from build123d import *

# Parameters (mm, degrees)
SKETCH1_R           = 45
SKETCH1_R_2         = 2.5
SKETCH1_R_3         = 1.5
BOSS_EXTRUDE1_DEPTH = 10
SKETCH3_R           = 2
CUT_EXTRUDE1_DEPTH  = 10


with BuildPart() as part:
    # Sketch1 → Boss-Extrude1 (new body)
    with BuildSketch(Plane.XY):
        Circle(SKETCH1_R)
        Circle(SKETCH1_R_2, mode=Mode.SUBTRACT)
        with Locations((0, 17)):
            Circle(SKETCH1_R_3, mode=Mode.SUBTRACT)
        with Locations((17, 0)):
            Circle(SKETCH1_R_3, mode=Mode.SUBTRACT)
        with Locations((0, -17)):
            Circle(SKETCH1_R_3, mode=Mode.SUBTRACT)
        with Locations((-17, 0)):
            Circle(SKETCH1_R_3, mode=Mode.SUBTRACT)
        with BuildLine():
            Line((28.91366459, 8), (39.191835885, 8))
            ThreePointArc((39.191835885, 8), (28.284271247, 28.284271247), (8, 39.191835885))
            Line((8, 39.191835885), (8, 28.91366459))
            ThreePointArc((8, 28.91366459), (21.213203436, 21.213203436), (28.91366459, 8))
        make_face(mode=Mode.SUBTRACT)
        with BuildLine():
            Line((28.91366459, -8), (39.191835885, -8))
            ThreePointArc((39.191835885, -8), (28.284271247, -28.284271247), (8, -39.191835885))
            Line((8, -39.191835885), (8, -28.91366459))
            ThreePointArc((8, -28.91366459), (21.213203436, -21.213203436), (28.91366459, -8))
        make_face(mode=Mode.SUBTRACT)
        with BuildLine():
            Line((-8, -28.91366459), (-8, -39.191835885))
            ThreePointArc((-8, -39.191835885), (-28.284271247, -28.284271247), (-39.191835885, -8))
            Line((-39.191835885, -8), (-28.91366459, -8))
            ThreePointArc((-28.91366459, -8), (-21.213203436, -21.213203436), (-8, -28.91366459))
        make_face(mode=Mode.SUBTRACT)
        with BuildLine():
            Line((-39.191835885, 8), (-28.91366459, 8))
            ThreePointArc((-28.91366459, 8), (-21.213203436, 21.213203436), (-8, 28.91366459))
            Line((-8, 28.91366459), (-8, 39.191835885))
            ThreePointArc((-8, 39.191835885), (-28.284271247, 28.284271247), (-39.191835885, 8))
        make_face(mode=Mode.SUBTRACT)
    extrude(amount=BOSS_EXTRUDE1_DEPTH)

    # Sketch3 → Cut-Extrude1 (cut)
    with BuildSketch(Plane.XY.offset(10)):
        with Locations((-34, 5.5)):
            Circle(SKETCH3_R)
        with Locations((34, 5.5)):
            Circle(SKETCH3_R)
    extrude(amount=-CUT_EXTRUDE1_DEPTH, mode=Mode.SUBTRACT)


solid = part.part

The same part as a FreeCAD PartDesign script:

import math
import FreeCAD as App
import Part
import Sketcher

doc = App.newDocument("Part")
params = doc.addObject("Spreadsheet::Sheet", "Params")
for row, (alias, value) in enumerate([
    ("sketch1_diameter", "90 mm"),
    ("sketch1_diameter2", "3 mm"),
    ("sketch1_diameter3", "5 mm"),
    ("sketch1_radius", "30 mm"),
    ("sketch1_radius2", "40 mm"),
    ("pad1_length", "10 mm"),
    ("sketch2_diameter", "4 mm"),
    ("pocket1_length", "10 mm"),
], start=1):
    params.set(f"A{row}", alias)
    params.set(f"B{row}", "=" + value)
    params.setAlias(f"B{row}", alias)

body = doc.addObject("PartDesign::Body", "Body")

sketch1 = body.newObject("Sketcher::SketchObject", "Sketch")
sketch1.AttachmentSupport = (doc.getObject("XY_Plane"), [""])
sketch1.MapMode = "FlatFace"
sketch1.addGeometry(Part.Circle(App.Vector(0, 0, 0), App.Vector(0, 0, 1), 45), False)
sketch1.addGeometry(Part.ArcOfCircle(Part.Circle(App.Vector(0, 0, 0), App.Vector(0, 0, 1), 30), math.radians(-165), math.radians(-105)), False)
sketch1.addGeometry(Part.LineSegment(App.Vector(-8, -28.9, 0), App.Vector(-8, -39.2, 0)), False)
sketch1.addGeometry(Part.ArcOfCircle(Part.Circle(App.Vector(0, 0, 0), App.Vector(0, 0, 1), 40), math.radians(-168), math.radians(-102)), False)
sketch1.addGeometry(Part.LineSegment(App.Vector(-39.2, -8, 0), App.Vector(-28.9, -8, 0)), False)
sketch1.addGeometry(Part.ArcOfCircle(Part.Circle(App.Vector(0, 0, 0), App.Vector(0, 0, 1), 30), math.radians(-75), math.radians(-15)), False)
sketch1.addGeometry(Part.LineSegment(App.Vector(28.9, -8, 0), App.Vector(39.2, -8, 0)), False)
sketch1.addGeometry(Part.ArcOfCircle(Part.Circle(App.Vector(0, 0, 0), App.Vector(0, 0, 1), 40), math.radians(-78), math.radians(-12)), False)
sketch1.addGeometry(Part.LineSegment(App.Vector(8, -39.2, 0), App.Vector(8, -28.9, 0)), False)
sketch1.addGeometry(Part.Circle(App.Vector(0, -17, 0), App.Vector(0, 0, 1), 1.5), False)
sketch1.addGeometry(Part.Circle(App.Vector(-17, 0, 0), App.Vector(0, 0, 1), 1.5), False)
sketch1.addGeometry(Part.LineSegment(App.Vector(-28.9, 8, 0), App.Vector(-39.2, 8, 0)), False)
sketch1.addGeometry(Part.ArcOfCircle(Part.Circle(App.Vector(0, 0, 0), App.Vector(0, 0, 1), 40), math.radians(102), math.radians(168)), False)
sketch1.addGeometry(Part.LineSegment(App.Vector(-8, 39.2, 0), App.Vector(-8, 28.9, 0)), False)
sketch1.addGeometry(Part.ArcOfCircle(Part.Circle(App.Vector(0, 0, 0), App.Vector(0, 0, 1), 30), math.radians(105), math.radians(165)), False)
sketch1.addGeometry(Part.Circle(App.Vector(0, 0, 0), App.Vector(0, 0, 1), 2.5), False)
sketch1.addGeometry(Part.Circle(App.Vector(17, 0, 0), App.Vector(0, 0, 1), 1.5), False)
sketch1.addGeometry(Part.Circle(App.Vector(0, 17, 0), App.Vector(0, 0, 1), 1.5), False)
sketch1.addGeometry(Part.LineSegment(App.Vector(39.2, 8, 0), App.Vector(28.9, 8, 0)), False)
sketch1.addGeometry(Part.ArcOfCircle(Part.Circle(App.Vector(0, 0, 0), App.Vector(0, 0, 1), 30), math.radians(15), math.radians(75)), False)
sketch1.addGeometry(Part.LineSegment(App.Vector(8, 28.9, 0), App.Vector(8, 39.2, 0)), False)
sketch1.addGeometry(Part.ArcOfCircle(Part.Circle(App.Vector(0, 0, 0), App.Vector(0, 0, 1), 40), math.radians(12), math.radians(78)), False)
sketch1.addConstraint(Sketcher.Constraint("Coincident", 1, 2, 2, 1))
sketch1.addConstraint(Sketcher.Constraint("Coincident", 2, 2, 3, 2))
sketch1.addConstraint(Sketcher.Constraint("Coincident", 3, 1, 4, 1))
sketch1.addConstraint(Sketcher.Constraint("Coincident", 4, 2, 1, 1))
sketch1.addConstraint(Sketcher.Constraint("Coincident", 5, 2, 6, 1))
sketch1.addConstraint(Sketcher.Constraint("Coincident", 6, 2, 7, 2))
sketch1.addConstraint(Sketcher.Constraint("Coincident", 7, 1, 8, 1))
sketch1.addConstraint(Sketcher.Constraint("Coincident", 8, 2, 5, 1))
sketch1.addConstraint(Sketcher.Constraint("Coincident", 11, 2, 12, 2))
sketch1.addConstraint(Sketcher.Constraint("Coincident", 12, 1, 13, 1))
sketch1.addConstraint(Sketcher.Constraint("Coincident", 13, 2, 14, 1))
sketch1.addConstraint(Sketcher.Constraint("Coincident", 14, 2, 11, 1))
sketch1.addConstraint(Sketcher.Constraint("Coincident", 18, 2, 19, 1))
sketch1.addConstraint(Sketcher.Constraint("Coincident", 19, 2, 20, 1))
sketch1.addConstraint(Sketcher.Constraint("Coincident", 20, 2, 21, 2))
sketch1.addConstraint(Sketcher.Constraint("Coincident", 21, 1, 18, 1))
sketch1.addConstraint(Sketcher.Constraint("Vertical", 2))
sketch1.addConstraint(Sketcher.Constraint("Horizontal", 4))
sketch1.addConstraint(Sketcher.Constraint("Horizontal", 6))
sketch1.addConstraint(Sketcher.Constraint("Vertical", 8))
sketch1.addConstraint(Sketcher.Constraint("Horizontal", 11))
sketch1.addConstraint(Sketcher.Constraint("Vertical", 13))
sketch1.addConstraint(Sketcher.Constraint("Horizontal", 18))
sketch1.addConstraint(Sketcher.Constraint("Vertical", 20))
sketch1.addConstraint(Sketcher.Constraint("Coincident", 0, 3, -1, 1))
sketch1.addConstraint(Sketcher.Constraint("Coincident", 1, 3, -1, 1))
sketch1.addConstraint(Sketcher.Constraint("Coincident", 3, 3, -1, 1))
sketch1.addConstraint(Sketcher.Constraint("Coincident", 5, 3, -1, 1))
sketch1.addConstraint(Sketcher.Constraint("Coincident", 7, 3, -1, 1))
sketch1.addConstraint(Sketcher.Constraint("Coincident", 12, 3, -1, 1))
sketch1.addConstraint(Sketcher.Constraint("Coincident", 14, 3, -1, 1))
sketch1.addConstraint(Sketcher.Constraint("Coincident", 15, 3, -1, 1))
sketch1.addConstraint(Sketcher.Constraint("Coincident", 19, 3, -1, 1))
sketch1.addConstraint(Sketcher.Constraint("Coincident", 21, 3, -1, 1))
sketch1.addConstraint(Sketcher.Constraint("Equal", 1, 5))
sketch1.addConstraint(Sketcher.Constraint("Equal", 3, 7))
sketch1.addConstraint(Sketcher.Constraint("Equal", 9, 10))
sketch1.addConstraint(Sketcher.Constraint("Equal", 7, 12))
sketch1.addConstraint(Sketcher.Constraint("Equal", 5, 14))
sketch1.addConstraint(Sketcher.Constraint("Equal", 10, 16))
sketch1.addConstraint(Sketcher.Constraint("Equal", 16, 17))
sketch1.addConstraint(Sketcher.Constraint("Equal", 14, 19))
sketch1.addConstraint(Sketcher.Constraint("Equal", 12, 21))
sketch1.addConstraint(Sketcher.Constraint("Symmetric", 10, 3, 16, 3, -1, 1))
sketch1.addConstraint(Sketcher.Constraint("Symmetric", 9, 3, 17, 3, -1, 1))
sketch1.addConstraint(Sketcher.Constraint("PointOnObject", 9, 3, -2))
sketch1.addConstraint(Sketcher.Constraint("PointOnObject", 10, 3, -1))
sketch1.addConstraint(Sketcher.Constraint("Horizontal", 4, 2, 5, 2))
sketch1.addConstraint(Sketcher.Constraint("Horizontal", 2, 2, 7, 1))
sketch1.addConstraint(Sketcher.Constraint("Horizontal", 14, 2, 18, 2))
sketch1.addConstraint(Sketcher.Constraint("Horizontal", 13, 2, 19, 2))
sketch1.addConstraint(Sketcher.Constraint("Vertical", 3, 1, 11, 2))
sketch1.addConstraint(Sketcher.Constraint("Vertical", 2, 2, 12, 1))
sketch1.addConstraint(Sketcher.Constraint("Equal", 18, 2))
sketch1.addConstraint(Sketcher.Constraint("Diameter", 0, 90.0))
sketch1.addConstraint(Sketcher.Constraint("Diameter", 9, 3.0))
sketch1.addConstraint(Sketcher.Constraint("Diameter", 15, 5.0))
sketch1.addConstraint(Sketcher.Constraint("Radius", 1, 30.0))
sketch1.addConstraint(Sketcher.Constraint("Radius", 3, 40.0))
sketch1.addConstraint(Sketcher.Constraint("DistanceY", 9, 3, -1, 1, 17.0))
sketch1.addConstraint(Sketcher.Constraint("DistanceX", 10, 3, -1, 1, 17.0))
sketch1.addConstraint(Sketcher.Constraint("DistanceX", 1, 2, -1, 1, 8.0))
sketch1.setExpression("Constraints[54]", "Params.sketch1_diameter")
sketch1.setExpression("Constraints[55]", "Params.sketch1_diameter2")
sketch1.setExpression("Constraints[56]", "Params.sketch1_diameter3")
sketch1.setExpression("Constraints[57]", "Params.sketch1_radius")
sketch1.setExpression("Constraints[58]", "Params.sketch1_radius2")
pad1 = body.newObject("PartDesign::Pad", "Pad")
pad1.Profile = sketch1
pad1.setExpression("Length", "Params.pad1_length")

sketch2 = body.newObject("Sketcher::SketchObject", "Sketch001")
sketch2.AttachmentSupport = (doc.getObject("XY_Plane"), [""])
sketch2.MapMode = "FlatFace"
sketch2.AttachmentOffset = App.Placement(App.Vector(0, 0, 10), App.Rotation())
sketch2.addGeometry(Part.Circle(App.Vector(-34, 5.5, 0), App.Vector(0, 0, 1), 2), False)
sketch2.addGeometry(Part.Circle(App.Vector(34, 5.5, 0), App.Vector(0, 0, 1), 2), False)
sketch2.addConstraint(Sketcher.Constraint("Equal", 0, 1))
sketch2.addConstraint(Sketcher.Constraint("Symmetric", 0, 3, 1, 3, -2))
sketch2.addConstraint(Sketcher.Constraint("Diameter", 0, 4.0))
sketch2.addConstraint(Sketcher.Constraint("DistanceX", 0, 3, -1, 1, 34.0))
sketch2.addConstraint(Sketcher.Constraint("DistanceY", -1, 1, 0, 3, 5.5))
sketch2.setExpression("Constraints[2]", "Params.sketch2_diameter")
pocket1 = body.newObject("PartDesign::Pocket", "Pocket")
pocket1.Profile = sketch2
pocket1.setExpression("Length", "Params.pocket1_length")

doc.recompute()
